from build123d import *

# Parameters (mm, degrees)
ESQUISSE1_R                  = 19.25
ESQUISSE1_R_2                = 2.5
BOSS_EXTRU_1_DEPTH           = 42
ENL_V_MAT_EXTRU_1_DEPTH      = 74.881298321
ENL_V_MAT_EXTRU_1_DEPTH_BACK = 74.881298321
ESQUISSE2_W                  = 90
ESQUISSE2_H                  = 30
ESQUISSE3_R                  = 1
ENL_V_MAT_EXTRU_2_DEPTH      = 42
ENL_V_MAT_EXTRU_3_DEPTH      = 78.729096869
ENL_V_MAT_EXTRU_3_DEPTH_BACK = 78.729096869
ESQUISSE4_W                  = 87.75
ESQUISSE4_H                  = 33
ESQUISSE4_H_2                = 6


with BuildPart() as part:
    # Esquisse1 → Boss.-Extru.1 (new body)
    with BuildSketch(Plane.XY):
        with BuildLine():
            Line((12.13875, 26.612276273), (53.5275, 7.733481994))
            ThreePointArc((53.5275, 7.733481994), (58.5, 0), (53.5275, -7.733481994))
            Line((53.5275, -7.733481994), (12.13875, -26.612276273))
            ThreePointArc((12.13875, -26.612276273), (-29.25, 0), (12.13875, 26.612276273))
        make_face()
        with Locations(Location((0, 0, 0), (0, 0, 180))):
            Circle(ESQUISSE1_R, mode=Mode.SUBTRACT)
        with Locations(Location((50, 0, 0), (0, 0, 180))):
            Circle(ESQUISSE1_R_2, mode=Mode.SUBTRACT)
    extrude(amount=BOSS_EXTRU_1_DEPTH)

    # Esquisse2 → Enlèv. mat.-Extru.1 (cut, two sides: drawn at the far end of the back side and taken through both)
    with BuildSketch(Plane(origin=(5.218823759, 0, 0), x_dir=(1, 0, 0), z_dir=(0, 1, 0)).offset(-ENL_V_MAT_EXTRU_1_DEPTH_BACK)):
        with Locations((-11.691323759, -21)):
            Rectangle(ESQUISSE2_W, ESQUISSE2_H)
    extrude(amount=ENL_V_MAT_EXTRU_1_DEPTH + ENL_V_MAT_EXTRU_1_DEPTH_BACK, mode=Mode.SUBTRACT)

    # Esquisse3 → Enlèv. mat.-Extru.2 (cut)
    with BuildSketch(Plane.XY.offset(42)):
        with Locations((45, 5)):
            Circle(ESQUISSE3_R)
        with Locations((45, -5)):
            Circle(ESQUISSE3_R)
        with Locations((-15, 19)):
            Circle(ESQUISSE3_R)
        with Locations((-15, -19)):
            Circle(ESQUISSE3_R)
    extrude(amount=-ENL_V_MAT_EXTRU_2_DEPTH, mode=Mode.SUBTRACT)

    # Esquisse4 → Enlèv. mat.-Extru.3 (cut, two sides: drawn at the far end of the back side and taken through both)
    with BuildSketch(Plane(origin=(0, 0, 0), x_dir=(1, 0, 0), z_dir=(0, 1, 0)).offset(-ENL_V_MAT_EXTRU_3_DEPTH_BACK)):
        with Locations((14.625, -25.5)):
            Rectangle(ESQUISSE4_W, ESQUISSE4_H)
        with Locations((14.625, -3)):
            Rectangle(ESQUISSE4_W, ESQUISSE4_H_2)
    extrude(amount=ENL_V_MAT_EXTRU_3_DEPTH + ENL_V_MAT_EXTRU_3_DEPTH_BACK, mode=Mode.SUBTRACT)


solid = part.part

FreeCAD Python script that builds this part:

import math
import FreeCAD as App
import Part
import Sketcher
from FreeCAD import Vector
Q = App.Units.Quantity

doc = App.newDocument("Part")
body = doc.addObject("PartDesign::Body", "Body")

# Sketch on XY plane
sketch1 = body.newObject("Sketcher::SketchObject", "Sketch")
sketch1.AttachmentSupport = (doc.getObject("XY_Plane"), [""])
sketch1.MapMode = "FlatFace"
sketch1.addGeometry([
    Part.LineSegment(Vector(53.5275, 7.733482, 0), Vector(12.13875, 26.612276, 0)),  # 0
    Part.ArcOfCircle(Part.Circle(Vector(0, 0, 0), Vector(0, 0, 1), 29.25), math.radians(65.480684), math.radians(294.519316)),  # 1
    Part.LineSegment(Vector(12.13875, -26.612276, 0), Vector(53.5275, -7.733482, 0)),  # 2
    Part.ArcOfCircle(Part.Circle(Vector(50, 0, 0), Vector(0, 0, 1), 8.5), math.radians(-65.480684), math.radians(65.480684)),  # 3
    Part.Circle(Vector(50, 0, 0), Vector(0, 0, 1), 2.5),  # 4
    Part.Circle(Vector(0, 0, 0), Vector(0, 0, 1), 19.25),  # 5
], False)
sketch1.addConstraint([
    Sketcher.Constraint("Tangent", 0, 2, 1, 1),
    Sketcher.Constraint("Tangent", 1, 2, 2, 1),
    Sketcher.Constraint("Tangent", 2, 2, 3, 1),
    Sketcher.Constraint("Tangent", 3, 2, 0, 1),
    Sketcher.Constraint("Coincident", 1, 3, -1, 1),
    Sketcher.Constraint("Coincident", 5, 3, -1, 1),
    Sketcher.Constraint("Coincident", 4, 3, 3, 3),
    Sketcher.Constraint("PointOnObject", 3, 3, -1),
    Sketcher.Constraint("Diameter", 4, Q("5 mm")),
    Sketcher.Constraint("Diameter", 5, Q("38.5 mm")),
    Sketcher.Constraint("Radius", 3, Q("8.5 mm")),
    Sketcher.Constraint("Radius", 1, Q("29.25 mm")),
    Sketcher.Constraint("DistanceX", -1, 1, 3, 3, Q("50 mm")),
])
pad1 = body.newObject("PartDesign::Pad", "Pad")
pad1.Profile = sketch1
pad1.Length = 42

# Sketch on XZ plane
sketch2 = body.newObject("Sketcher::SketchObject", "Sketch001")
sketch2.AttachmentSupport = (doc.getObject("XZ_Plane"), [""])
sketch2.MapMode = "FlatFace"
sketch2.addGeometry([
    Part.LineSegment(Vector(-51.4725, 6, 0), Vector(-51.4725, 36, 0)),
    Part.LineSegment(Vector(-51.4725, 36, 0), Vector(38.5275, 36, 0)),
    Part.LineSegment(Vector(38.5275, 36, 0), Vector(38.5275, 6, 0)),
    Part.LineSegment(Vector(38.5275, 6, 0), Vector(-51.4725, 6, 0)),
], False)
sketch2.addConstraint([
    Sketcher.Constraint("Coincident", 0, 2, 1, 1),
    Sketcher.Constraint("Coincident", 1, 2, 2, 1),
    Sketcher.Constraint("Coincident", 2, 2, 3, 1),
    Sketcher.Constraint("Coincident", 3, 2, 0, 1),
    Sketcher.Constraint("Vertical", 0),
    Sketcher.Constraint("Horizontal", 1),
    Sketcher.Constraint("Vertical", 2),
    Sketcher.Constraint("Horizontal", 3),
    Sketcher.Constraint("DistanceX", 1, 1, 1, 2, Q("90 mm")),
    Sketcher.Constraint("DistanceY", 0, 1, 0, 2, Q("30 mm")),
    Sketcher.Constraint("DistanceY", -1, 1, 0, 2, Q("36 mm")),
    Sketcher.Constraint("DistanceX", 0, 2, -1, 1, Q("51.4725 mm")),
])
pocket1 = body.newObject("PartDesign::Pocket", "Pocket")
pocket1.Profile = sketch2
pocket1.Type = "ThroughAll"
pocket1.Midplane = True

# Sketch on XY plane
sketch3 = body.newObject("Sketcher::SketchObject", "Sketch002")
sketch3.AttachmentSupport = (doc.getObject("XY_Plane"), [""])
sketch3.MapMode = "FlatFace"
sketch3.AttachmentOffset = App.Placement(Vector(0, 0, 42), App.Rotation())
sketch3.addGeometry([
    Part.Circle(Vector(45, 5, 0), Vector(0, 0, 1), 1),
    Part.Circle(Vector(45, -5, 0), Vector(0, 0, 1), 1),
    Part.Circle(Vector(-15, 19, 0), Vector(0, 0, 1), 1),
    Part.Circle(Vector(-15, -19, 0), Vector(0, 0, 1), 1),
], False)
sketch3.addConstraint([
    Sketcher.Constraint("Equal", 0, 1),
    Sketcher.Constraint("Equal", 1, 2),
    Sketcher.Constraint("Equal", 2, 3),
    Sketcher.Constraint("Symmetric", 0, 3, 1, 3, -1),
    Sketcher.Constraint("Symmetric", 2, 3, 3, 3, -1),
    Sketcher.Constraint("Diameter", 0, Q("2 mm")),
    Sketcher.Constraint("DistanceX", -1, 1, 0, 3, Q("45 mm")),
    Sketcher.Constraint("DistanceY", -1, 1, 0, 3, Q("5 mm")),
    Sketcher.Constraint("DistanceX", 2, 3, -1, 1, Q("15 mm")),
    Sketcher.Constraint("DistanceY", -1, 1, 2, 3, Q("19 mm")),
])
pocket2 = body.newObject("PartDesign::Pocket", "Pocket001")
pocket2.Profile = sketch3
pocket2.Length = 42

# Sketch on XZ plane
sketch4 = body.newObject("Sketcher::SketchObject", "Sketch003")
sketch4.AttachmentSupport = (doc.getObject("XZ_Plane"), [""])
sketch4.MapMode = "FlatFace"
sketch4.addGeometry([
    Part.LineSegment(Vector(-29.25, 9, 0), Vector(-29.25, 42, 0)),  # 0
    Part.LineSegment(Vector(-29.25, 42, 0), Vector(58.5, 42, 0)),  # 1
    Part.LineSegment(Vector(58.5, 42, 0), Vector(58.5, 9, 0)),  # 2
    Part.LineSegment(Vector(58.5, 9, 0), Vector(-29.25, 9, 0)),  # 3
    Part.LineSegment(Vector(-29.25, 0, 0), Vector(-29.25, 6, 0)),  # 4
    Part.LineSegment(Vector(-29.25, 6, 0), Vector(58.5, 6, 0)),  # 5
    Part.LineSegment(Vector(58.5, 6, 0), Vector(58.5, 0, 0)),  # 6
    Part.LineSegment(Vector(58.5, 0, 0), Vector(-29.25, 0, 0)),  # 7
], False)
sketch4.addConstraint([
    Sketcher.Constraint("Coincident", 0, 2, 1, 1),
    Sketcher.Constraint("Coincident", 1, 2, 2, 1),
    Sketcher.Constraint("Coincident", 2, 2, 3, 1),
    Sketcher.Constraint("Coincident", 3, 2, 0, 1),
    Sketcher.Constraint("Coincident", 4, 2, 5, 1),
    Sketcher.Constraint("Coincident", 5, 2, 6, 1),
    Sketcher.Constraint("Coincident", 6, 2, 7, 1),
    Sketcher.Constraint("Coincident", 7, 2, 4, 1),
    Sketcher.Constraint("Vertical", 0),
    Sketcher.Constraint("Horizontal", 1),
    Sketcher.Constraint("Vertical", 2),
    Sketcher.Constraint("Horizontal", 3),
    Sketcher.Constraint("Vertical", 4),
    Sketcher.Constraint("Horizontal", 5),
    Sketcher.Constraint("Vertical", 6),
    Sketcher.Constraint("Horizontal", 7),
    Sketcher.Constraint("PointOnObject", 6, 2, -1),
    Sketcher.Constraint("Vertical", 3, 2, 4, 2),
    Sketcher.Constraint("Vertical", 2, 2, 5, 2),
    Sketcher.Constraint("DistanceY", 0, 1, 0, 2, Q("33 mm")),
    Sketcher.Constraint("DistanceY", 4, 1, 4, 2, Q("6 mm")),
    Sketcher.Constraint("DistanceY", -1, 1, 0, 2, Q("42 mm")),
    Sketcher.Constraint("DistanceX", 1, 1, 1, 2, Q("87.75 mm")),
    Sketcher.Constraint("DistanceX", -1, 1, 1, 2, Q("58.5 mm")),
])
pocket3 = body.newObject("PartDesign::Pocket", "Pocket002")
pocket3.Profile = sketch4
pocket3.Type = "ThroughAll"
pocket3.Midplane = True

doc.recompute()
